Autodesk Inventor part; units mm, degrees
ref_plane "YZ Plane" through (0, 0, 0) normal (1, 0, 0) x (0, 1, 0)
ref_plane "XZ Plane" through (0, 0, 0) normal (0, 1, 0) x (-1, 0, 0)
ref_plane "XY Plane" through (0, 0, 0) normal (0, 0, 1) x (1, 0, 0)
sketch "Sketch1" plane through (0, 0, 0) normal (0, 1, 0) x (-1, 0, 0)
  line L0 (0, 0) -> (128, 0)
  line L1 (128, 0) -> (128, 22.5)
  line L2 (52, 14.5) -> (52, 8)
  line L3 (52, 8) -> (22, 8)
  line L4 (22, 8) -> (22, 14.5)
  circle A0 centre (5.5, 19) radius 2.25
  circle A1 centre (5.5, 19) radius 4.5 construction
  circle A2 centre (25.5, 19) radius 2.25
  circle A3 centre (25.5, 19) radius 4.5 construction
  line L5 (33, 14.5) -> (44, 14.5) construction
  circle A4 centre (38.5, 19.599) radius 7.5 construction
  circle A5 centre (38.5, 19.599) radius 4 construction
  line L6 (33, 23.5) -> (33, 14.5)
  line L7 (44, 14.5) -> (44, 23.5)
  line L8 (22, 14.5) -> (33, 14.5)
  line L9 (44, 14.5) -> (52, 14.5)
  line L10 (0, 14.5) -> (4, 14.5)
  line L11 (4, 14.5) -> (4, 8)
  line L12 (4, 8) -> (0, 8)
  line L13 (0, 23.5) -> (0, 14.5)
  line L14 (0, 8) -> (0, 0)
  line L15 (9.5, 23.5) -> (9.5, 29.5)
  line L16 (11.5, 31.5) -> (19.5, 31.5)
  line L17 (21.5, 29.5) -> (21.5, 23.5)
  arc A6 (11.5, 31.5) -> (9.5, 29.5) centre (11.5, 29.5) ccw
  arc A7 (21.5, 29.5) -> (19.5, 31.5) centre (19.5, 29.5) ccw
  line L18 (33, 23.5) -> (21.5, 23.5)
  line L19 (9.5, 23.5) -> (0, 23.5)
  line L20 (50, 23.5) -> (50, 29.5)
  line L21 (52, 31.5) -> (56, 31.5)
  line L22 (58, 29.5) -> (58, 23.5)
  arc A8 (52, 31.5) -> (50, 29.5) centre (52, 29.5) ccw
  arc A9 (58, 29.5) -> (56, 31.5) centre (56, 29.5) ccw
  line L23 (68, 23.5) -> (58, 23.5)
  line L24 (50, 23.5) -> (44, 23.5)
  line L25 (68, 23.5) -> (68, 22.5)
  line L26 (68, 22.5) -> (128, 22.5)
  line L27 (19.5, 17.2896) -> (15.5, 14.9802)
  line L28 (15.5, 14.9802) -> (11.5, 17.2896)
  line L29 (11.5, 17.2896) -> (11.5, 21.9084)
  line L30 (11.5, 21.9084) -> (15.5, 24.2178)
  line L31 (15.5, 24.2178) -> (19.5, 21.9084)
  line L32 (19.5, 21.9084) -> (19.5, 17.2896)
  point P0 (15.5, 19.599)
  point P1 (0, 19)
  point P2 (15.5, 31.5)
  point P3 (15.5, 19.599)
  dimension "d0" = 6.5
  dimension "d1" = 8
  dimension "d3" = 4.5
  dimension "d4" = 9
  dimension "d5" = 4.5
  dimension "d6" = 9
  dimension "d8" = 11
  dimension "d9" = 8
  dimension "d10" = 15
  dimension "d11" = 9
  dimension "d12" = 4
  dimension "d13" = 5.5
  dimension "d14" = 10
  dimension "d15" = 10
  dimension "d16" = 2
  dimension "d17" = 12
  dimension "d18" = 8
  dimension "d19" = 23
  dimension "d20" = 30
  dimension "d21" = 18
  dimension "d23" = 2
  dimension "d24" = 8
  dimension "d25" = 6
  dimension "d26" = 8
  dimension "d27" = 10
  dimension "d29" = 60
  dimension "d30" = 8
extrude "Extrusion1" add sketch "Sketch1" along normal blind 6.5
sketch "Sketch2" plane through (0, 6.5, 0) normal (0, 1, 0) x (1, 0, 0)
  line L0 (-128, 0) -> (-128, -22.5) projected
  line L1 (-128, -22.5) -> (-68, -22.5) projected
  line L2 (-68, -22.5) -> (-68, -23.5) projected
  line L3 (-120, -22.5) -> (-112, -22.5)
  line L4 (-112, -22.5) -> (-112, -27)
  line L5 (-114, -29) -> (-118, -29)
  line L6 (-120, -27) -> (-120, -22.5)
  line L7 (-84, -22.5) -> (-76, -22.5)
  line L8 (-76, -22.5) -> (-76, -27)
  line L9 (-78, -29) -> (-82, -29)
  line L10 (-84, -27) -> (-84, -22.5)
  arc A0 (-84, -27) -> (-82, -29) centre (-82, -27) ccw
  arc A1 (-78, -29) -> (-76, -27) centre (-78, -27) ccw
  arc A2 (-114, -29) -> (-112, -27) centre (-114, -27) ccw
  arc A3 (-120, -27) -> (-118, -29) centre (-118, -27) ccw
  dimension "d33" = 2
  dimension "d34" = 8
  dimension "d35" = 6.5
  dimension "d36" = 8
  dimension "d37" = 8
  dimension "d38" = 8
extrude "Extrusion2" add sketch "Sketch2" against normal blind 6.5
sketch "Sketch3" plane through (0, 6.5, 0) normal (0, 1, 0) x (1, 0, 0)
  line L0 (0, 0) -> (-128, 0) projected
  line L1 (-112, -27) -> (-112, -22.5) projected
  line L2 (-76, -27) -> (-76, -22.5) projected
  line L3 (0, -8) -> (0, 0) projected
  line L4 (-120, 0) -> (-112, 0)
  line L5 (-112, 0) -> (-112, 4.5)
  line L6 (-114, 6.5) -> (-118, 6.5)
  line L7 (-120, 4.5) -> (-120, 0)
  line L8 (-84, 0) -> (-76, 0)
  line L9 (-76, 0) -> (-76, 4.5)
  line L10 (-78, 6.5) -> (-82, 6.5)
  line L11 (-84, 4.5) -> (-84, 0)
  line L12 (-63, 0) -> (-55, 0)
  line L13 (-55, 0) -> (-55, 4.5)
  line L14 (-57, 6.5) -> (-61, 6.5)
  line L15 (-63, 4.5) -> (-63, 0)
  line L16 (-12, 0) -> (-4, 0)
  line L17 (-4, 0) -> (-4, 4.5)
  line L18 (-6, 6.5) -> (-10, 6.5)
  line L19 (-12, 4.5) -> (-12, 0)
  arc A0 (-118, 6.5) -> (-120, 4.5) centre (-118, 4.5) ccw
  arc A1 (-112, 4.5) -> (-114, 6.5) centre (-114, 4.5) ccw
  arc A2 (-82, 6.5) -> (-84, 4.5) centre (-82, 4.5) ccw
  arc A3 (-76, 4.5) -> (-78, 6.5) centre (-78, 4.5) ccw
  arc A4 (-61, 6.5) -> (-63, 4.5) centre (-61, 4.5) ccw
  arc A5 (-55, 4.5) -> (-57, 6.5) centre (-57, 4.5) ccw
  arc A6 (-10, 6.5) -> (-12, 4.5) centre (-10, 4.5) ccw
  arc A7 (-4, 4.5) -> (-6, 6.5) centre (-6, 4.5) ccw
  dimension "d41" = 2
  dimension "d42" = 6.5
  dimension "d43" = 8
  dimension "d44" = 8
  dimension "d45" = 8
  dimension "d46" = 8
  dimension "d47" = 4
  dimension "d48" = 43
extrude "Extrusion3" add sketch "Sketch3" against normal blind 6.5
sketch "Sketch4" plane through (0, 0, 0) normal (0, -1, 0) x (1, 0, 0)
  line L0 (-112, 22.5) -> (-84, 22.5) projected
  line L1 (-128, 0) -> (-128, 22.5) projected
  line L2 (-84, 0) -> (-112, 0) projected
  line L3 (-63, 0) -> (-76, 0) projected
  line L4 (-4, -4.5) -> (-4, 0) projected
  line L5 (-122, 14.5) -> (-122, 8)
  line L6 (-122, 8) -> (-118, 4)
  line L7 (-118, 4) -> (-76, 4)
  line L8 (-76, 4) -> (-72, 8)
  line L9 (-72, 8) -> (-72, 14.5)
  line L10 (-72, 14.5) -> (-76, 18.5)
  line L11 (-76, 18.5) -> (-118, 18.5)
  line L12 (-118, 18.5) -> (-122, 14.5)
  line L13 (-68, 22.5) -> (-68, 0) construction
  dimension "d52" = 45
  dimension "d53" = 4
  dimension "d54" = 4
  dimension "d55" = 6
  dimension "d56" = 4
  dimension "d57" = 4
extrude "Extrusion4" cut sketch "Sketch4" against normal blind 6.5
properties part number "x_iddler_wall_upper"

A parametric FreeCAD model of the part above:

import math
import FreeCAD as App
import Part
import Sketcher
Q = App.Units.Quantity


def add_polygon(sketch, points):
    """Adds a closed chain of lines whose ends are joined by coincident constraints."""
    first, n = sketch.GeometryCount, len(points)
    for a, b in zip(points, points[1:] + points[:1]):
        sketch.addGeometry(Part.LineSegment(App.Vector(*a, 0), App.Vector(*b, 0)), False)
    for i in range(n):
        sketch.addConstraint(Sketcher.Constraint("Coincident", first + i, 2, first + (i + 1) % n, 1))

doc = App.newDocument("Part")
body = doc.addObject("PartDesign::Body", "Body")

# Sketch on XZ plane
sketch1 = body.newObject("Sketcher::SketchObject", "Sketch")
sketch1.AttachmentSupport = (doc.getObject("XZ_Plane"), [""])
sketch1.MapMode = "FlatFace"
sketch1.addGeometry(Part.LineSegment(App.Vector(0, 8, 0), App.Vector(0, 0, 0)), False)  # 0
sketch1.addGeometry(Part.LineSegment(App.Vector(0, 0, 0), App.Vector(-128, 0, 0)), False)  # 1
sketch1.addGeometry(Part.LineSegment(App.Vector(-128, 0, 0), App.Vector(-128, 22.5, 0)), False)  # 2
sketch1.addGeometry(Part.LineSegment(App.Vector(-128, 22.5, 0), App.Vector(-68, 22.5, 0)), False)  # 3
sketch1.addGeometry(Part.LineSegment(App.Vector(-68, 22.5, 0), App.Vector(-68, 23.5, 0)), False)  # 4
sketch1.addGeometry(Part.LineSegment(App.Vector(-68, 23.5, 0), App.Vector(-58, 23.5, 0)), False)  # 5
sketch1.addGeometry(Part.LineSegment(App.Vector(-58, 23.5, 0), App.Vector(-58, 29.5, 0)), False)  # 6
sketch1.addGeometry(Part.ArcOfCircle(Part.Circle(App.Vector(-56, 29.5, 0), App.Vector(0, 0, 1), 2), math.radians(90), math.radians(180)), False)  # 7
sketch1.addGeometry(Part.LineSegment(App.Vector(-56, 31.5, 0), App.Vector(-52, 31.5, 0)), False)  # 8
sketch1.addGeometry(Part.ArcOfCircle(Part.Circle(App.Vector(-52, 29.5, 0), App.Vector(0, 0, 1), 2), math.radians(0), math.radians(90)), False)  # 9
sketch1.addGeometry(Part.LineSegment(App.Vector(-50, 29.5, 0), App.Vector(-50, 23.5, 0)), False)  # 10
sketch1.addGeometry(Part.LineSegment(App.Vector(-50, 23.5, 0), App.Vector(-44, 23.5, 0)), False)  # 11
sketch1.addGeometry(Part.LineSegment(App.Vector(-44, 23.5, 0), App.Vector(-44, 14.5, 0)), False)  # 12
sketch1.addGeometry(Part.LineSegment(App.Vector(-44, 14.5, 0), App.Vector(-52, 14.5, 0)), False)  # 13
sketch1.addGeometry(Part.LineSegment(App.Vector(-52, 14.5, 0), App.Vector(-52, 8, 0)), False)  # 14
sketch1.addGeometry(Part.LineSegment(App.Vector(-52, 8, 0), App.Vector(-22, 8, 0)), False)  # 15
sketch1.addGeometry(Part.LineSegment(App.Vector(-22, 8, 0), App.Vector(-22, 14.5, 0)), False)  # 16
sketch1.addGeometry(Part.LineSegment(App.Vector(-22, 14.5, 0), App.Vector(-33, 14.5, 0)), False)  # 17
sketch1.addGeometry(Part.LineSegment(App.Vector(-33, 14.5, 0), App.Vector(-33, 23.5, 0)), False)  # 18
sketch1.addGeometry(Part.LineSegment(App.Vector(-33, 23.5, 0), App.Vector(-21.5, 23.5, 0)), False)  # 19
sketch1.addGeometry(Part.LineSegment(App.Vector(-21.5, 23.5, 0), App.Vector(-21.5, 29.5, 0)), False)  # 20
sketch1.addGeometry(Part.ArcOfCircle(Part.Circle(App.Vector(-19.5, 29.5, 0), App.Vector(0, 0, 1), 2), math.radians(90), math.radians(180)), False)  # 21
sketch1.addGeometry(Part.LineSegment(App.Vector(-19.5, 31.5, 0), App.Vector(-11.5, 31.5, 0)), False)  # 22
sketch1.addGeometry(Part.ArcOfCircle(Part.Circle(App.Vector(-11.5, 29.5, 0), App.Vector(0, 0, 1), 2), math.radians(0), math.radians(90)), False)  # 23
sketch1.addGeometry(Part.LineSegment(App.Vector(-9.5, 29.5, 0), App.Vector(-9.5, 23.5, 0)), False)  # 24
sketch1.addGeometry(Part.LineSegment(App.Vector(-9.5, 23.5, 0), App.Vector(0, 23.5, 0)), False)  # 25
sketch1.addGeometry(Part.LineSegment(App.Vector(0, 23.5, 0), App.Vector(0, 14.5, 0)), False)  # 26
sketch1.addGeometry(Part.LineSegment(App.Vector(0, 14.5, 0), App.Vector(-4, 14.5, 0)), False)  # 27
sketch1.addGeometry(Part.LineSegment(App.Vector(-4, 14.5, 0), App.Vector(-4, 8, 0)), False)  # 28
sketch1.addGeometry(Part.LineSegment(App.Vector(-4, 8, 0), App.Vector(0, 8, 0)), False)  # 29
sketch1.addGeometry(Part.Circle(App.Vector(-5.5, 19, 0), App.Vector(0, 0, 1), 2.25), False)  # 30
add_polygon(sketch1, [(-19.5, 21.9084), (-19.5, 17.2896), (-15.5, 14.9802), (-11.5, 17.2896), (-11.5, 21.9084), (-15.5, 24.2178)])  # lines 31-36
sketch1.addGeometry(Part.Circle(App.Vector(-25.5, 19, 0), App.Vector(0, 0, 1), 2.25), False)  # 37
sketch1.addConstraint([
    Sketcher.Constraint("Coincident", 0, 2, 1, 1),
    Sketcher.Constraint("Coincident", 1, 2, 2, 1),
    Sketcher.Constraint("Coincident", 2, 2, 3, 1),
    Sketcher.Constraint("Coincident", 3, 2, 4, 1),
    Sketcher.Constraint("Coincident", 4, 2, 5, 1),
    Sketcher.Constraint("Coincident", 5, 2, 6, 1),
    Sketcher.Constraint("Tangent", 6, 2, 7, 2),
    Sketcher.Constraint("Tangent", 7, 1, 8, 1),
    Sketcher.Constraint("Tangent", 8, 2, 9, 2),
    Sketcher.Constraint("Tangent", 9, 1, 10, 1),
    Sketcher.Constraint("Coincident", 10, 2, 11, 1),
    Sketcher.Constraint("Coincident", 11, 2, 12, 1),
    Sketcher.Constraint("Coincident", 12, 2, 13, 1),
    Sketcher.Constraint("Coincident", 13, 2, 14, 1),
    Sketcher.Constraint("Coincident", 14, 2, 15, 1),
    Sketcher.Constraint("Coincident", 15, 2, 16, 1),
    Sketcher.Constraint("Coincident", 16, 2, 17, 1),
    Sketcher.Constraint("Coincident", 17, 2, 18, 1),
    Sketcher.Constraint("Coincident", 18, 2, 19, 1),
    Sketcher.Constraint("Coincident", 19, 2, 20, 1),
    Sketcher.Constraint("Tangent", 20, 2, 21, 2),
    Sketcher.Constraint("Tangent", 21, 1, 22, 1),
    Sketcher.Constraint("Tangent", 22, 2, 23, 2),
    Sketcher.Constraint("Tangent", 23, 1, 24, 1),
    Sketcher.Constraint("Coincident", 24, 2, 25, 1),
    Sketcher.Constraint("Coincident", 25, 2, 26, 1),
    Sketcher.Constraint("Coincident", 26, 2, 27, 1),
    Sketcher.Constraint("Coincident", 27, 2, 28, 1),
    Sketcher.Constraint("Coincident", 28, 2, 29, 1),
    Sketcher.Constraint("Coincident", 29, 2, 0, 1),
    Sketcher.Constraint("Vertical", 0),
    Sketcher.Constraint("Horizontal", 1),
    Sketcher.Constraint("Vertical", 2),
    Sketcher.Constraint("Horizontal", 3),
    Sketcher.Constraint("Vertical", 4),
    Sketcher.Constraint("Horizontal", 5),
    Sketcher.Constraint("Vertical", 6),
    Sketcher.Constraint("Horizontal", 8),
    Sketcher.Constraint("Vertical", 10),
    Sketcher.Constraint("Horizontal", 11),
    Sketcher.Constraint("Vertical", 12),
    Sketcher.Constraint("Horizontal", 13),
    Sketcher.Constraint("Vertical", 14),
    Sketcher.Constraint("Horizontal", 15),
    Sketcher.Constraint("Vertical", 16),
    Sketcher.Constraint("Horizontal", 17),
    Sketcher.Constraint("Vertical", 18),
    Sketcher.Constraint("Horizontal", 19),
    Sketcher.Constraint("Vertical", 20),
    Sketcher.Constraint("Horizontal", 22),
    Sketcher.Constraint("Vertical", 24),
    Sketcher.Constraint("Horizontal", 25),
    Sketcher.Constraint("Vertical", 26),
    Sketcher.Constraint("Horizontal", 27),
    Sketcher.Constraint("Vertical", 28),
    Sketcher.Constraint("Horizontal", 29),
    Sketcher.Constraint("Vertical", 31),
    Sketcher.Constraint("Vertical", 34),
    Sketcher.Constraint("Coincident", 0, 2, -1, 1),
    Sketcher.Constraint("Equal", 7, 9),
    Sketcher.Constraint("Equal", 9, 21),
    Sketcher.Constraint("Equal", 21, 23),
    Sketcher.Constraint("Equal", 30, 37),
    Sketcher.Constraint("PointOnObject", 25, 2, -2),
    Sketcher.Constraint("Parallel", 32, 35),
    Sketcher.Constraint("Parallel", 33, 36),
    Sketcher.Constraint("Horizontal", 9, 3, 21, 3),
    Sketcher.Constraint("Horizontal", 30, 3, 37, 3),
    Sketcher.Constraint("Horizontal", 5, 2, 10, 2),
    Sketcher.Constraint("Horizontal", 13, 2, 16, 2),
    Sketcher.Constraint("Horizontal", 11, 2, 18, 2),
    Sketcher.Constraint("Horizontal", 19, 2, 24, 2),
    Sketcher.Constraint("Horizontal", 17, 2, 26, 2),
    Sketcher.Constraint("Horizontal", 15, 2, 28, 2),
    Sketcher.Constraint("Horizontal", 31, 2, 33, 2),
    Sketcher.Constraint("Horizontal", 34, 2, 36, 2),
    Sketcher.Constraint("Vertical", 8, 2, 13, 2),
    Sketcher.Constraint("Vertical", 21, 1, 31, 2),
    Sketcher.Constraint("Vertical", 22, 2, 33, 2),
    Sketcher.Constraint("Vertical", 32, 2, 35, 2),
    Sketcher.Constraint("Equal", 13, 22),
    Sketcher.Constraint("Equal", 8, 27),
    Sketcher.Constraint("Equal", 22, 0),
    Sketcher.Constraint("Equal", 11, 6),
    Sketcher.Constraint("Radius", 7, Q("2 mm")),
    Sketcher.Constraint("Diameter", 30, Q("4.5 mm")),
    Sketcher.Constraint("DistanceX", 3, 1, 3, 2, Q("60 mm")),
    Sketcher.Constraint("DistanceX", 5, 1, 5, 2, Q("10 mm")),
    Sketcher.Constraint("DistanceX", 8, 1, 8, 2, Q("4 mm")),
    Sketcher.Constraint("DistanceX", 11, 1, 11, 2, Q("6 mm")),
    Sketcher.Constraint("DistanceX", 15, 1, 15, 2, Q("30 mm")),
    Sketcher.Constraint("DistanceX", 17, 2, 17, 1, Q("11 mm")),
    Sketcher.Constraint("DistanceY", 12, 2, 12, 1, Q("9 mm")),
    Sketcher.Constraint("Angle", 32, Q("-30 deg")),
    Sketcher.Constraint("DistanceY", 14, 2, 14, 1, Q("6.5 mm")),
    Sketcher.Constraint("DistanceX", 23, 3, 30, 3, Q("6 mm")),
    Sketcher.Constraint("DistanceX", 37, 3, 21, 3, Q("6 mm")),
    Sketcher.Constraint("DistanceY", 15, 2, 37, 3, Q("11 mm")),
    Sketcher.Constraint("DistanceX", 30, 3, -1, 1, Q("5.5 mm")),
    Sketcher.Constraint("DistanceX", 16, 2, 32, 2, Q("6.5 mm")),
    Sketcher.Constraint("DistanceY", 4, 1, 4, 2, Q("1 mm")),
    Sketcher.Constraint("DistanceY", 31, 2, 31, 1, Q("4.6188 mm")),
    Sketcher.Constraint("DistanceY", -1, 1, 31, 2, Q("17.2896 mm")),
])
pad1 = body.newObject("PartDesign::Pad", "Pad")
pad1.Profile = sketch1
pad1.Length = 6.5
pad1.Reversed = True

# Sketch on XZ plane
sketch2 = body.newObject("Sketcher::SketchObject", "Sketch001")
sketch2.AttachmentSupport = (doc.getObject("XZ_Plane"), [""])
sketch2.MapMode = "FlatFace"
sketch2.AttachmentOffset = App.Placement(App.Vector(0, 0, -6.5), App.Rotation())
sketch2.addGeometry([
    Part.LineSegment(App.Vector(-76, 22.5, 0), App.Vector(-84, 22.5, 0)),  # 0
    Part.LineSegment(App.Vector(-84, 22.5, 0), App.Vector(-84, 27, 0)),  # 1
    Part.ArcOfCircle(Part.Circle(App.Vector(-82, 27, 0), App.Vector(0, 0, 1), 2), math.radians(90), math.radians(180)),  # 2
    Part.LineSegment(App.Vector(-82, 29, 0), App.Vector(-78, 29, 0)),  # 3
    Part.ArcOfCircle(Part.Circle(App.Vector(-78, 27, 0), App.Vector(0, 0, 1), 2), math.radians(0), math.radians(90)),  # 4
    Part.LineSegment(App.Vector(-76, 27, 0), App.Vector(-76, 22.5, 0)),  # 5
    Part.LineSegment(App.Vector(-112, 22.5, 0), App.Vector(-120, 22.5, 0)),  # 6
    Part.LineSegment(App.Vector(-120, 22.5, 0), App.Vector(-120, 27, 0)),  # 7
    Part.ArcOfCircle(Part.Circle(App.Vector(-118, 27, 0), App.Vector(0, 0, 1), 2), math.radians(90), math.radians(180)),  # 8
    Part.LineSegment(App.Vector(-118, 29, 0), App.Vector(-114, 29, 0)),  # 9
    Part.ArcOfCircle(Part.Circle(App.Vector(-114, 27, 0), App.Vector(0, 0, 1), 2), math.radians(0), math.radians(90)),  # 10
    Part.LineSegment(App.Vector(-112, 27, 0), App.Vector(-112, 22.5, 0)),  # 11
], False)
sketch2.addConstraint([
    Sketcher.Constraint("Coincident", 0, 2, 1, 1),
    Sketcher.Constraint("Tangent", 1, 2, 2, 2),
    Sketcher.Constraint("Tangent", 2, 1, 3, 1),
    Sketcher.Constraint("Tangent", 3, 2, 4, 2),
    Sketcher.Constraint("Tangent", 4, 1, 5, 1),
    Sketcher.Constraint("Coincident", 5, 2, 0, 1),
    Sketcher.Constraint("Coincident", 6, 2, 7, 1),
    Sketcher.Constraint("Tangent", 7, 2, 8, 2),
    Sketcher.Constraint("Tangent", 8, 1, 9, 1),
    Sketcher.Constraint("Tangent", 9, 2, 10, 2),
    Sketcher.Constraint("Tangent", 10, 1, 11, 1),
    Sketcher.Constraint("Coincident", 11, 2, 6, 1),
    Sketcher.Constraint("Horizontal", 0),
    Sketcher.Constraint("Vertical", 1),
    Sketcher.Constraint("Horizontal", 3),
    Sketcher.Constraint("Vertical", 5),
    Sketcher.Constraint("Horizontal", 6),
    Sketcher.Constraint("Vertical", 7),
    Sketcher.Constraint("Horizontal", 9),
    Sketcher.Constraint("Vertical", 11),
    Sketcher.Constraint("Equal", 2, 4),
    Sketcher.Constraint("Equal", 4, 8),
    Sketcher.Constraint("Equal", 8, 10),
    Sketcher.Constraint("Horizontal", 4, 3, 8, 3),
    Sketcher.Constraint("Horizontal", 5, 2, 6, 2),
    Sketcher.Constraint("Equal", 0, 6),
    Sketcher.Constraint("Radius", 2, Q("2 mm")),
    Sketcher.Constraint("DistanceX", 0, 2, 0, 1, Q("8 mm")),
    Sketcher.Constraint("DistanceY", 0, 2, 2, 1, Q("6.5 mm")),
    Sketcher.Constraint("DistanceX", 2, 3, -1, 1, Q("82 mm")),
    Sketcher.Constraint("DistanceY", -1, 1, 2, 3, Q("27 mm")),
    Sketcher.Constraint("DistanceX", 8, 3, -1, 1, Q("118 mm")),
])
pad2 = body.newObject("PartDesign::Pad", "Pad001")
pad2.Profile = sketch2
pad2.Length = 6.5

# Sketch on XZ plane
sketch3 = body.newObject("Sketcher::SketchObject", "Sketch002")
sketch3.AttachmentSupport = (doc.getObject("XZ_Plane"), [""])
sketch3.MapMode = "FlatFace"
sketch3.AttachmentOffset = App.Placement(App.Vector(0, 0, -6.5), App.Rotation())
sketch3.addGeometry([
    Part.LineSegment(App.Vector(-120, 0, 0), App.Vector(-112, 0, 0)),  # 0
    Part.LineSegment(App.Vector(-112, 0, 0), App.Vector(-112, -4.5, 0)),  # 1
    Part.ArcOfCircle(Part.Circle(App.Vector(-114, -4.5, 0), App.Vector(0, 0, 1), 2), math.radians(-90), math.radians(0)),  # 2
    Part.LineSegment(App.Vector(-114, -6.5, 0), App.Vector(-118, -6.5, 0)),  # 3
    Part.ArcOfCircle(Part.Circle(App.Vector(-118, -4.5, 0), App.Vector(0, 0, 1), 2), math.radians(180), math.radians(270)),  # 4
    Part.LineSegment(App.Vector(-120, -4.5, 0), App.Vector(-120, 0, 0)),  # 5
    Part.LineSegment(App.Vector(-84, 0, 0), App.Vector(-76, 0, 0)),  # 6
    Part.LineSegment(App.Vector(-76, 0, 0), App.Vector(-76, -4.5, 0)),  # 7
    Part.ArcOfCircle(Part.Circle(App.Vector(-78, -4.5, 0), App.Vector(0, 0, 1), 2), math.radians(-90), math.radians(0)),  # 8
    Part.LineSegment(App.Vector(-78, -6.5, 0), App.Vector(-82, -6.5, 0)),  # 9
    Part.ArcOfCircle(Part.Circle(App.Vector(-82, -4.5, 0), App.Vector(0, 0, 1), 2), math.radians(180), math.radians(270)),  # 10
    Part.LineSegment(App.Vector(-84, -4.5, 0), App.Vector(-84, 0, 0)),  # 11
    Part.LineSegment(App.Vector(-63, 0, 0), App.Vector(-55, 0, 0)),  # 12
    Part.LineSegment(App.Vector(-55, 0, 0), App.Vector(-55, -4.5, 0)),  # 13
    Part.ArcOfCircle(Part.Circle(App.Vector(-57, -4.5, 0), App.Vector(0, 0, 1), 2), math.radians(-90), math.radians(0)),  # 14
    Part.LineSegment(App.Vector(-57, -6.5, 0), App.Vector(-61, -6.5, 0)),  # 15
    Part.ArcOfCircle(Part.Circle(App.Vector(-61, -4.5, 0), App.Vector(0, 0, 1), 2), math.radians(180), math.radians(270)),  # 16
    Part.LineSegment(App.Vector(-63, -4.5, 0), App.Vector(-63, 0, 0)),  # 17
    Part.LineSegment(App.Vector(-12, 0, 0), App.Vector(-4, 0, 0)),  # 18
    Part.LineSegment(App.Vector(-4, 0, 0), App.Vector(-4, -4.5, 0)),  # 19
    Part.ArcOfCircle(Part.Circle(App.Vector(-6, -4.5, 0), App.Vector(0, 0, 1), 2), math.radians(-90), math.radians(0)),  # 20
    Part.LineSegment(App.Vector(-6, -6.5, 0), App.Vector(-10, -6.5, 0)),  # 21
    Part.ArcOfCircle(Part.Circle(App.Vector(-10, -4.5, 0), App.Vector(0, 0, 1), 2), math.radians(180), math.radians(270)),  # 22
    Part.LineSegment(App.Vector(-12, -4.5, 0), App.Vector(-12, 0, 0)),  # 23
], False)
sketch3.addConstraint([
    Sketcher.Constraint("Coincident", 0, 2, 1, 1),
    Sketcher.Constraint("Tangent", 1, 2, 2, 2),
    Sketcher.Constraint("Tangent", 2, 1, 3, 1),
    Sketcher.Constraint("Tangent", 3, 2, 4, 2),
    Sketcher.Constraint("Tangent", 4, 1, 5, 1),
    Sketcher.Constraint("Coincident", 5, 2, 0, 1),
    Sketcher.Constraint("Coincident", 6, 2, 7, 1),
    Sketcher.Constraint("Tangent", 7, 2, 8, 2),
    Sketcher.Constraint("Tangent", 8, 1, 9, 1),
    Sketcher.Constraint("Tangent", 9, 2, 10, 2),
    Sketcher.Constraint("Tangent", 10, 1, 11, 1),
    Sketcher.Constraint("Coincident", 11, 2, 6, 1),
    Sketcher.Constraint("Coincident", 12, 2, 13, 1),
    Sketcher.Constraint("Tangent", 13, 2, 14, 2),
    Sketcher.Constraint("Tangent", 14, 1, 15, 1),
    Sketcher.Constraint("Tangent", 15, 2, 16, 2),
    Sketcher.Constraint("Tangent", 16, 1, 17, 1),
    Sketcher.Constraint("Coincident", 17, 2, 12, 1),
    Sketcher.Constraint("Coincident", 18, 2, 19, 1),
    Sketcher.Constraint("Tangent", 19, 2, 20, 2),
    Sketcher.Constraint("Tangent", 20, 1, 21, 1),
    Sketcher.Constraint("Tangent", 21, 2, 22, 2),
    Sketcher.Constraint("Tangent", 22, 1, 23, 1),
    Sketcher.Constraint("Coincident", 23, 2, 18, 1),
    Sketcher.Constraint("Horizontal", 0),
    Sketcher.Constraint("Vertical", 1),
    Sketcher.Constraint("Horizontal", 3),
    Sketcher.Constraint("Vertical", 5),
    Sketcher.Constraint("Horizontal", 6),
    Sketcher.Constraint("Vertical", 7),
    Sketcher.Constraint("Horizontal", 9),
    Sketcher.Constraint("Vertical", 11),
    Sketcher.Constraint("Horizontal", 12),
    Sketcher.Constraint("Vertical", 13),
    Sketcher.Constraint("Horizontal", 15),
    Sketcher.Constraint("Vertical", 17),
    Sketcher.Constraint("Horizontal", 18),
    Sketcher.Constraint("Vertical", 19),
    Sketcher.Constraint("Horizontal", 21),
    Sketcher.Constraint("Vertical", 23),
    Sketcher.Constraint("Equal", 2, 4),
    Sketcher.Constraint("Equal", 4, 8),
    Sketcher.Constraint("Equal", 8, 10),
    Sketcher.Constraint("Equal", 10, 14),
    Sketcher.Constraint("Equal", 14, 16),
    Sketcher.Constraint("Equal", 16, 20),
    Sketcher.Constraint("Equal", 20, 22),
    Sketcher.Constraint("PointOnObject", 0, 2, -1),
    Sketcher.Constraint("PointOnObject", 6, 2, -1),
    Sketcher.Constraint("PointOnObject", 12, 2, -1),
    Sketcher.Constraint("PointOnObject", 18, 2, -1),
    Sketcher.Constraint("Horizontal", 4, 3, 8, 3),
    Sketcher.Constraint("Horizontal", 10, 3, 14, 3),
    Sketcher.Constraint("Horizontal", 16, 3, 20, 3),
    Sketcher.Constraint("Equal", 0, 6),
    Sketcher.Constraint("Equal", 6, 12),
    Sketcher.Constraint("Equal", 12, 18),
    Sketcher.Constraint("Radius", 2, Q("2 mm")),
    Sketcher.Constraint("DistanceX", 0, 1, 0, 2, Q("8 mm")),
    Sketcher.Constraint("DistanceX", 18, 2, -1, 1, Q("4 mm")),
    Sketcher.Constraint("DistanceY", 2, 1, -1, 1, Q("6.5 mm")),
    Sketcher.Constraint("DistanceX", 2, 3, -1, 1, Q("114 mm")),
    Sketcher.Constraint("DistanceX", 8, 3, -1, 1, Q("78 mm")),
    Sketcher.Constraint("DistanceX", 14, 3, -1, 1, Q("57 mm")),
])
pad3 = body.newObject("PartDesign::Pad", "Pad002")
pad3.Profile = sketch3
pad3.Length = 6.5

# Sketch on XZ plane
sketch4 = body.newObject("Sketcher::SketchObject", "Sketch003")
sketch4.AttachmentSupport = (doc.getObject("XZ_Plane"), [""])
sketch4.MapMode = "FlatFace"
add_polygon(sketch4, [(-118, 18.5), (-122, 14.5), (-122, 8), (-118, 4), (-76, 4), (-72, 8), (-72, 14.5), (-76, 18.5)])  # lines 0-7
sketch4.addConstraint([
    Sketcher.Constraint("Vertical", 1),
    Sketcher.Constraint("Horizontal", 3),
    Sketcher.Constraint("Vertical", 5),
    Sketcher.Constraint("Horizontal", 7),
    Sketcher.Constraint("Perpendicular", 0, 2),
    Sketcher.Constraint("Perpendicular", 2, 4),
    Sketcher.Constraint("Perpendicular", 4, 6),
    Sketcher.Constraint("Horizontal", 1, 2, 4, 2),
    Sketcher.Constraint("Horizontal", 0, 2, 5, 2),
    Sketcher.Constraint("Vertical", 3, 2, 6, 2),
    Sketcher.Constraint("Vertical", 2, 2, 7, 2),
    Sketcher.Constraint("DistanceY", -1, 1, 2, 2, Q("4 mm")),
    Sketcher.Constraint("DistanceX", 1, 2, 2, 2, Q("4 mm")),
    Sketcher.Constraint("DistanceX", 3, 1, 3, 2, Q("42 mm")),
    Sketcher.Constraint("DistanceY", 1, 2, 1, 1, Q("6.5 mm")),
    Sketcher.Constraint("DistanceX", 0, 2, -1, 1, Q("122 mm")),
])
pocket1 = body.newObject("PartDesign::Pocket", "Pocket")
pocket1.Profile = sketch4
pocket1.Length = 6.5

doc.recompute()
